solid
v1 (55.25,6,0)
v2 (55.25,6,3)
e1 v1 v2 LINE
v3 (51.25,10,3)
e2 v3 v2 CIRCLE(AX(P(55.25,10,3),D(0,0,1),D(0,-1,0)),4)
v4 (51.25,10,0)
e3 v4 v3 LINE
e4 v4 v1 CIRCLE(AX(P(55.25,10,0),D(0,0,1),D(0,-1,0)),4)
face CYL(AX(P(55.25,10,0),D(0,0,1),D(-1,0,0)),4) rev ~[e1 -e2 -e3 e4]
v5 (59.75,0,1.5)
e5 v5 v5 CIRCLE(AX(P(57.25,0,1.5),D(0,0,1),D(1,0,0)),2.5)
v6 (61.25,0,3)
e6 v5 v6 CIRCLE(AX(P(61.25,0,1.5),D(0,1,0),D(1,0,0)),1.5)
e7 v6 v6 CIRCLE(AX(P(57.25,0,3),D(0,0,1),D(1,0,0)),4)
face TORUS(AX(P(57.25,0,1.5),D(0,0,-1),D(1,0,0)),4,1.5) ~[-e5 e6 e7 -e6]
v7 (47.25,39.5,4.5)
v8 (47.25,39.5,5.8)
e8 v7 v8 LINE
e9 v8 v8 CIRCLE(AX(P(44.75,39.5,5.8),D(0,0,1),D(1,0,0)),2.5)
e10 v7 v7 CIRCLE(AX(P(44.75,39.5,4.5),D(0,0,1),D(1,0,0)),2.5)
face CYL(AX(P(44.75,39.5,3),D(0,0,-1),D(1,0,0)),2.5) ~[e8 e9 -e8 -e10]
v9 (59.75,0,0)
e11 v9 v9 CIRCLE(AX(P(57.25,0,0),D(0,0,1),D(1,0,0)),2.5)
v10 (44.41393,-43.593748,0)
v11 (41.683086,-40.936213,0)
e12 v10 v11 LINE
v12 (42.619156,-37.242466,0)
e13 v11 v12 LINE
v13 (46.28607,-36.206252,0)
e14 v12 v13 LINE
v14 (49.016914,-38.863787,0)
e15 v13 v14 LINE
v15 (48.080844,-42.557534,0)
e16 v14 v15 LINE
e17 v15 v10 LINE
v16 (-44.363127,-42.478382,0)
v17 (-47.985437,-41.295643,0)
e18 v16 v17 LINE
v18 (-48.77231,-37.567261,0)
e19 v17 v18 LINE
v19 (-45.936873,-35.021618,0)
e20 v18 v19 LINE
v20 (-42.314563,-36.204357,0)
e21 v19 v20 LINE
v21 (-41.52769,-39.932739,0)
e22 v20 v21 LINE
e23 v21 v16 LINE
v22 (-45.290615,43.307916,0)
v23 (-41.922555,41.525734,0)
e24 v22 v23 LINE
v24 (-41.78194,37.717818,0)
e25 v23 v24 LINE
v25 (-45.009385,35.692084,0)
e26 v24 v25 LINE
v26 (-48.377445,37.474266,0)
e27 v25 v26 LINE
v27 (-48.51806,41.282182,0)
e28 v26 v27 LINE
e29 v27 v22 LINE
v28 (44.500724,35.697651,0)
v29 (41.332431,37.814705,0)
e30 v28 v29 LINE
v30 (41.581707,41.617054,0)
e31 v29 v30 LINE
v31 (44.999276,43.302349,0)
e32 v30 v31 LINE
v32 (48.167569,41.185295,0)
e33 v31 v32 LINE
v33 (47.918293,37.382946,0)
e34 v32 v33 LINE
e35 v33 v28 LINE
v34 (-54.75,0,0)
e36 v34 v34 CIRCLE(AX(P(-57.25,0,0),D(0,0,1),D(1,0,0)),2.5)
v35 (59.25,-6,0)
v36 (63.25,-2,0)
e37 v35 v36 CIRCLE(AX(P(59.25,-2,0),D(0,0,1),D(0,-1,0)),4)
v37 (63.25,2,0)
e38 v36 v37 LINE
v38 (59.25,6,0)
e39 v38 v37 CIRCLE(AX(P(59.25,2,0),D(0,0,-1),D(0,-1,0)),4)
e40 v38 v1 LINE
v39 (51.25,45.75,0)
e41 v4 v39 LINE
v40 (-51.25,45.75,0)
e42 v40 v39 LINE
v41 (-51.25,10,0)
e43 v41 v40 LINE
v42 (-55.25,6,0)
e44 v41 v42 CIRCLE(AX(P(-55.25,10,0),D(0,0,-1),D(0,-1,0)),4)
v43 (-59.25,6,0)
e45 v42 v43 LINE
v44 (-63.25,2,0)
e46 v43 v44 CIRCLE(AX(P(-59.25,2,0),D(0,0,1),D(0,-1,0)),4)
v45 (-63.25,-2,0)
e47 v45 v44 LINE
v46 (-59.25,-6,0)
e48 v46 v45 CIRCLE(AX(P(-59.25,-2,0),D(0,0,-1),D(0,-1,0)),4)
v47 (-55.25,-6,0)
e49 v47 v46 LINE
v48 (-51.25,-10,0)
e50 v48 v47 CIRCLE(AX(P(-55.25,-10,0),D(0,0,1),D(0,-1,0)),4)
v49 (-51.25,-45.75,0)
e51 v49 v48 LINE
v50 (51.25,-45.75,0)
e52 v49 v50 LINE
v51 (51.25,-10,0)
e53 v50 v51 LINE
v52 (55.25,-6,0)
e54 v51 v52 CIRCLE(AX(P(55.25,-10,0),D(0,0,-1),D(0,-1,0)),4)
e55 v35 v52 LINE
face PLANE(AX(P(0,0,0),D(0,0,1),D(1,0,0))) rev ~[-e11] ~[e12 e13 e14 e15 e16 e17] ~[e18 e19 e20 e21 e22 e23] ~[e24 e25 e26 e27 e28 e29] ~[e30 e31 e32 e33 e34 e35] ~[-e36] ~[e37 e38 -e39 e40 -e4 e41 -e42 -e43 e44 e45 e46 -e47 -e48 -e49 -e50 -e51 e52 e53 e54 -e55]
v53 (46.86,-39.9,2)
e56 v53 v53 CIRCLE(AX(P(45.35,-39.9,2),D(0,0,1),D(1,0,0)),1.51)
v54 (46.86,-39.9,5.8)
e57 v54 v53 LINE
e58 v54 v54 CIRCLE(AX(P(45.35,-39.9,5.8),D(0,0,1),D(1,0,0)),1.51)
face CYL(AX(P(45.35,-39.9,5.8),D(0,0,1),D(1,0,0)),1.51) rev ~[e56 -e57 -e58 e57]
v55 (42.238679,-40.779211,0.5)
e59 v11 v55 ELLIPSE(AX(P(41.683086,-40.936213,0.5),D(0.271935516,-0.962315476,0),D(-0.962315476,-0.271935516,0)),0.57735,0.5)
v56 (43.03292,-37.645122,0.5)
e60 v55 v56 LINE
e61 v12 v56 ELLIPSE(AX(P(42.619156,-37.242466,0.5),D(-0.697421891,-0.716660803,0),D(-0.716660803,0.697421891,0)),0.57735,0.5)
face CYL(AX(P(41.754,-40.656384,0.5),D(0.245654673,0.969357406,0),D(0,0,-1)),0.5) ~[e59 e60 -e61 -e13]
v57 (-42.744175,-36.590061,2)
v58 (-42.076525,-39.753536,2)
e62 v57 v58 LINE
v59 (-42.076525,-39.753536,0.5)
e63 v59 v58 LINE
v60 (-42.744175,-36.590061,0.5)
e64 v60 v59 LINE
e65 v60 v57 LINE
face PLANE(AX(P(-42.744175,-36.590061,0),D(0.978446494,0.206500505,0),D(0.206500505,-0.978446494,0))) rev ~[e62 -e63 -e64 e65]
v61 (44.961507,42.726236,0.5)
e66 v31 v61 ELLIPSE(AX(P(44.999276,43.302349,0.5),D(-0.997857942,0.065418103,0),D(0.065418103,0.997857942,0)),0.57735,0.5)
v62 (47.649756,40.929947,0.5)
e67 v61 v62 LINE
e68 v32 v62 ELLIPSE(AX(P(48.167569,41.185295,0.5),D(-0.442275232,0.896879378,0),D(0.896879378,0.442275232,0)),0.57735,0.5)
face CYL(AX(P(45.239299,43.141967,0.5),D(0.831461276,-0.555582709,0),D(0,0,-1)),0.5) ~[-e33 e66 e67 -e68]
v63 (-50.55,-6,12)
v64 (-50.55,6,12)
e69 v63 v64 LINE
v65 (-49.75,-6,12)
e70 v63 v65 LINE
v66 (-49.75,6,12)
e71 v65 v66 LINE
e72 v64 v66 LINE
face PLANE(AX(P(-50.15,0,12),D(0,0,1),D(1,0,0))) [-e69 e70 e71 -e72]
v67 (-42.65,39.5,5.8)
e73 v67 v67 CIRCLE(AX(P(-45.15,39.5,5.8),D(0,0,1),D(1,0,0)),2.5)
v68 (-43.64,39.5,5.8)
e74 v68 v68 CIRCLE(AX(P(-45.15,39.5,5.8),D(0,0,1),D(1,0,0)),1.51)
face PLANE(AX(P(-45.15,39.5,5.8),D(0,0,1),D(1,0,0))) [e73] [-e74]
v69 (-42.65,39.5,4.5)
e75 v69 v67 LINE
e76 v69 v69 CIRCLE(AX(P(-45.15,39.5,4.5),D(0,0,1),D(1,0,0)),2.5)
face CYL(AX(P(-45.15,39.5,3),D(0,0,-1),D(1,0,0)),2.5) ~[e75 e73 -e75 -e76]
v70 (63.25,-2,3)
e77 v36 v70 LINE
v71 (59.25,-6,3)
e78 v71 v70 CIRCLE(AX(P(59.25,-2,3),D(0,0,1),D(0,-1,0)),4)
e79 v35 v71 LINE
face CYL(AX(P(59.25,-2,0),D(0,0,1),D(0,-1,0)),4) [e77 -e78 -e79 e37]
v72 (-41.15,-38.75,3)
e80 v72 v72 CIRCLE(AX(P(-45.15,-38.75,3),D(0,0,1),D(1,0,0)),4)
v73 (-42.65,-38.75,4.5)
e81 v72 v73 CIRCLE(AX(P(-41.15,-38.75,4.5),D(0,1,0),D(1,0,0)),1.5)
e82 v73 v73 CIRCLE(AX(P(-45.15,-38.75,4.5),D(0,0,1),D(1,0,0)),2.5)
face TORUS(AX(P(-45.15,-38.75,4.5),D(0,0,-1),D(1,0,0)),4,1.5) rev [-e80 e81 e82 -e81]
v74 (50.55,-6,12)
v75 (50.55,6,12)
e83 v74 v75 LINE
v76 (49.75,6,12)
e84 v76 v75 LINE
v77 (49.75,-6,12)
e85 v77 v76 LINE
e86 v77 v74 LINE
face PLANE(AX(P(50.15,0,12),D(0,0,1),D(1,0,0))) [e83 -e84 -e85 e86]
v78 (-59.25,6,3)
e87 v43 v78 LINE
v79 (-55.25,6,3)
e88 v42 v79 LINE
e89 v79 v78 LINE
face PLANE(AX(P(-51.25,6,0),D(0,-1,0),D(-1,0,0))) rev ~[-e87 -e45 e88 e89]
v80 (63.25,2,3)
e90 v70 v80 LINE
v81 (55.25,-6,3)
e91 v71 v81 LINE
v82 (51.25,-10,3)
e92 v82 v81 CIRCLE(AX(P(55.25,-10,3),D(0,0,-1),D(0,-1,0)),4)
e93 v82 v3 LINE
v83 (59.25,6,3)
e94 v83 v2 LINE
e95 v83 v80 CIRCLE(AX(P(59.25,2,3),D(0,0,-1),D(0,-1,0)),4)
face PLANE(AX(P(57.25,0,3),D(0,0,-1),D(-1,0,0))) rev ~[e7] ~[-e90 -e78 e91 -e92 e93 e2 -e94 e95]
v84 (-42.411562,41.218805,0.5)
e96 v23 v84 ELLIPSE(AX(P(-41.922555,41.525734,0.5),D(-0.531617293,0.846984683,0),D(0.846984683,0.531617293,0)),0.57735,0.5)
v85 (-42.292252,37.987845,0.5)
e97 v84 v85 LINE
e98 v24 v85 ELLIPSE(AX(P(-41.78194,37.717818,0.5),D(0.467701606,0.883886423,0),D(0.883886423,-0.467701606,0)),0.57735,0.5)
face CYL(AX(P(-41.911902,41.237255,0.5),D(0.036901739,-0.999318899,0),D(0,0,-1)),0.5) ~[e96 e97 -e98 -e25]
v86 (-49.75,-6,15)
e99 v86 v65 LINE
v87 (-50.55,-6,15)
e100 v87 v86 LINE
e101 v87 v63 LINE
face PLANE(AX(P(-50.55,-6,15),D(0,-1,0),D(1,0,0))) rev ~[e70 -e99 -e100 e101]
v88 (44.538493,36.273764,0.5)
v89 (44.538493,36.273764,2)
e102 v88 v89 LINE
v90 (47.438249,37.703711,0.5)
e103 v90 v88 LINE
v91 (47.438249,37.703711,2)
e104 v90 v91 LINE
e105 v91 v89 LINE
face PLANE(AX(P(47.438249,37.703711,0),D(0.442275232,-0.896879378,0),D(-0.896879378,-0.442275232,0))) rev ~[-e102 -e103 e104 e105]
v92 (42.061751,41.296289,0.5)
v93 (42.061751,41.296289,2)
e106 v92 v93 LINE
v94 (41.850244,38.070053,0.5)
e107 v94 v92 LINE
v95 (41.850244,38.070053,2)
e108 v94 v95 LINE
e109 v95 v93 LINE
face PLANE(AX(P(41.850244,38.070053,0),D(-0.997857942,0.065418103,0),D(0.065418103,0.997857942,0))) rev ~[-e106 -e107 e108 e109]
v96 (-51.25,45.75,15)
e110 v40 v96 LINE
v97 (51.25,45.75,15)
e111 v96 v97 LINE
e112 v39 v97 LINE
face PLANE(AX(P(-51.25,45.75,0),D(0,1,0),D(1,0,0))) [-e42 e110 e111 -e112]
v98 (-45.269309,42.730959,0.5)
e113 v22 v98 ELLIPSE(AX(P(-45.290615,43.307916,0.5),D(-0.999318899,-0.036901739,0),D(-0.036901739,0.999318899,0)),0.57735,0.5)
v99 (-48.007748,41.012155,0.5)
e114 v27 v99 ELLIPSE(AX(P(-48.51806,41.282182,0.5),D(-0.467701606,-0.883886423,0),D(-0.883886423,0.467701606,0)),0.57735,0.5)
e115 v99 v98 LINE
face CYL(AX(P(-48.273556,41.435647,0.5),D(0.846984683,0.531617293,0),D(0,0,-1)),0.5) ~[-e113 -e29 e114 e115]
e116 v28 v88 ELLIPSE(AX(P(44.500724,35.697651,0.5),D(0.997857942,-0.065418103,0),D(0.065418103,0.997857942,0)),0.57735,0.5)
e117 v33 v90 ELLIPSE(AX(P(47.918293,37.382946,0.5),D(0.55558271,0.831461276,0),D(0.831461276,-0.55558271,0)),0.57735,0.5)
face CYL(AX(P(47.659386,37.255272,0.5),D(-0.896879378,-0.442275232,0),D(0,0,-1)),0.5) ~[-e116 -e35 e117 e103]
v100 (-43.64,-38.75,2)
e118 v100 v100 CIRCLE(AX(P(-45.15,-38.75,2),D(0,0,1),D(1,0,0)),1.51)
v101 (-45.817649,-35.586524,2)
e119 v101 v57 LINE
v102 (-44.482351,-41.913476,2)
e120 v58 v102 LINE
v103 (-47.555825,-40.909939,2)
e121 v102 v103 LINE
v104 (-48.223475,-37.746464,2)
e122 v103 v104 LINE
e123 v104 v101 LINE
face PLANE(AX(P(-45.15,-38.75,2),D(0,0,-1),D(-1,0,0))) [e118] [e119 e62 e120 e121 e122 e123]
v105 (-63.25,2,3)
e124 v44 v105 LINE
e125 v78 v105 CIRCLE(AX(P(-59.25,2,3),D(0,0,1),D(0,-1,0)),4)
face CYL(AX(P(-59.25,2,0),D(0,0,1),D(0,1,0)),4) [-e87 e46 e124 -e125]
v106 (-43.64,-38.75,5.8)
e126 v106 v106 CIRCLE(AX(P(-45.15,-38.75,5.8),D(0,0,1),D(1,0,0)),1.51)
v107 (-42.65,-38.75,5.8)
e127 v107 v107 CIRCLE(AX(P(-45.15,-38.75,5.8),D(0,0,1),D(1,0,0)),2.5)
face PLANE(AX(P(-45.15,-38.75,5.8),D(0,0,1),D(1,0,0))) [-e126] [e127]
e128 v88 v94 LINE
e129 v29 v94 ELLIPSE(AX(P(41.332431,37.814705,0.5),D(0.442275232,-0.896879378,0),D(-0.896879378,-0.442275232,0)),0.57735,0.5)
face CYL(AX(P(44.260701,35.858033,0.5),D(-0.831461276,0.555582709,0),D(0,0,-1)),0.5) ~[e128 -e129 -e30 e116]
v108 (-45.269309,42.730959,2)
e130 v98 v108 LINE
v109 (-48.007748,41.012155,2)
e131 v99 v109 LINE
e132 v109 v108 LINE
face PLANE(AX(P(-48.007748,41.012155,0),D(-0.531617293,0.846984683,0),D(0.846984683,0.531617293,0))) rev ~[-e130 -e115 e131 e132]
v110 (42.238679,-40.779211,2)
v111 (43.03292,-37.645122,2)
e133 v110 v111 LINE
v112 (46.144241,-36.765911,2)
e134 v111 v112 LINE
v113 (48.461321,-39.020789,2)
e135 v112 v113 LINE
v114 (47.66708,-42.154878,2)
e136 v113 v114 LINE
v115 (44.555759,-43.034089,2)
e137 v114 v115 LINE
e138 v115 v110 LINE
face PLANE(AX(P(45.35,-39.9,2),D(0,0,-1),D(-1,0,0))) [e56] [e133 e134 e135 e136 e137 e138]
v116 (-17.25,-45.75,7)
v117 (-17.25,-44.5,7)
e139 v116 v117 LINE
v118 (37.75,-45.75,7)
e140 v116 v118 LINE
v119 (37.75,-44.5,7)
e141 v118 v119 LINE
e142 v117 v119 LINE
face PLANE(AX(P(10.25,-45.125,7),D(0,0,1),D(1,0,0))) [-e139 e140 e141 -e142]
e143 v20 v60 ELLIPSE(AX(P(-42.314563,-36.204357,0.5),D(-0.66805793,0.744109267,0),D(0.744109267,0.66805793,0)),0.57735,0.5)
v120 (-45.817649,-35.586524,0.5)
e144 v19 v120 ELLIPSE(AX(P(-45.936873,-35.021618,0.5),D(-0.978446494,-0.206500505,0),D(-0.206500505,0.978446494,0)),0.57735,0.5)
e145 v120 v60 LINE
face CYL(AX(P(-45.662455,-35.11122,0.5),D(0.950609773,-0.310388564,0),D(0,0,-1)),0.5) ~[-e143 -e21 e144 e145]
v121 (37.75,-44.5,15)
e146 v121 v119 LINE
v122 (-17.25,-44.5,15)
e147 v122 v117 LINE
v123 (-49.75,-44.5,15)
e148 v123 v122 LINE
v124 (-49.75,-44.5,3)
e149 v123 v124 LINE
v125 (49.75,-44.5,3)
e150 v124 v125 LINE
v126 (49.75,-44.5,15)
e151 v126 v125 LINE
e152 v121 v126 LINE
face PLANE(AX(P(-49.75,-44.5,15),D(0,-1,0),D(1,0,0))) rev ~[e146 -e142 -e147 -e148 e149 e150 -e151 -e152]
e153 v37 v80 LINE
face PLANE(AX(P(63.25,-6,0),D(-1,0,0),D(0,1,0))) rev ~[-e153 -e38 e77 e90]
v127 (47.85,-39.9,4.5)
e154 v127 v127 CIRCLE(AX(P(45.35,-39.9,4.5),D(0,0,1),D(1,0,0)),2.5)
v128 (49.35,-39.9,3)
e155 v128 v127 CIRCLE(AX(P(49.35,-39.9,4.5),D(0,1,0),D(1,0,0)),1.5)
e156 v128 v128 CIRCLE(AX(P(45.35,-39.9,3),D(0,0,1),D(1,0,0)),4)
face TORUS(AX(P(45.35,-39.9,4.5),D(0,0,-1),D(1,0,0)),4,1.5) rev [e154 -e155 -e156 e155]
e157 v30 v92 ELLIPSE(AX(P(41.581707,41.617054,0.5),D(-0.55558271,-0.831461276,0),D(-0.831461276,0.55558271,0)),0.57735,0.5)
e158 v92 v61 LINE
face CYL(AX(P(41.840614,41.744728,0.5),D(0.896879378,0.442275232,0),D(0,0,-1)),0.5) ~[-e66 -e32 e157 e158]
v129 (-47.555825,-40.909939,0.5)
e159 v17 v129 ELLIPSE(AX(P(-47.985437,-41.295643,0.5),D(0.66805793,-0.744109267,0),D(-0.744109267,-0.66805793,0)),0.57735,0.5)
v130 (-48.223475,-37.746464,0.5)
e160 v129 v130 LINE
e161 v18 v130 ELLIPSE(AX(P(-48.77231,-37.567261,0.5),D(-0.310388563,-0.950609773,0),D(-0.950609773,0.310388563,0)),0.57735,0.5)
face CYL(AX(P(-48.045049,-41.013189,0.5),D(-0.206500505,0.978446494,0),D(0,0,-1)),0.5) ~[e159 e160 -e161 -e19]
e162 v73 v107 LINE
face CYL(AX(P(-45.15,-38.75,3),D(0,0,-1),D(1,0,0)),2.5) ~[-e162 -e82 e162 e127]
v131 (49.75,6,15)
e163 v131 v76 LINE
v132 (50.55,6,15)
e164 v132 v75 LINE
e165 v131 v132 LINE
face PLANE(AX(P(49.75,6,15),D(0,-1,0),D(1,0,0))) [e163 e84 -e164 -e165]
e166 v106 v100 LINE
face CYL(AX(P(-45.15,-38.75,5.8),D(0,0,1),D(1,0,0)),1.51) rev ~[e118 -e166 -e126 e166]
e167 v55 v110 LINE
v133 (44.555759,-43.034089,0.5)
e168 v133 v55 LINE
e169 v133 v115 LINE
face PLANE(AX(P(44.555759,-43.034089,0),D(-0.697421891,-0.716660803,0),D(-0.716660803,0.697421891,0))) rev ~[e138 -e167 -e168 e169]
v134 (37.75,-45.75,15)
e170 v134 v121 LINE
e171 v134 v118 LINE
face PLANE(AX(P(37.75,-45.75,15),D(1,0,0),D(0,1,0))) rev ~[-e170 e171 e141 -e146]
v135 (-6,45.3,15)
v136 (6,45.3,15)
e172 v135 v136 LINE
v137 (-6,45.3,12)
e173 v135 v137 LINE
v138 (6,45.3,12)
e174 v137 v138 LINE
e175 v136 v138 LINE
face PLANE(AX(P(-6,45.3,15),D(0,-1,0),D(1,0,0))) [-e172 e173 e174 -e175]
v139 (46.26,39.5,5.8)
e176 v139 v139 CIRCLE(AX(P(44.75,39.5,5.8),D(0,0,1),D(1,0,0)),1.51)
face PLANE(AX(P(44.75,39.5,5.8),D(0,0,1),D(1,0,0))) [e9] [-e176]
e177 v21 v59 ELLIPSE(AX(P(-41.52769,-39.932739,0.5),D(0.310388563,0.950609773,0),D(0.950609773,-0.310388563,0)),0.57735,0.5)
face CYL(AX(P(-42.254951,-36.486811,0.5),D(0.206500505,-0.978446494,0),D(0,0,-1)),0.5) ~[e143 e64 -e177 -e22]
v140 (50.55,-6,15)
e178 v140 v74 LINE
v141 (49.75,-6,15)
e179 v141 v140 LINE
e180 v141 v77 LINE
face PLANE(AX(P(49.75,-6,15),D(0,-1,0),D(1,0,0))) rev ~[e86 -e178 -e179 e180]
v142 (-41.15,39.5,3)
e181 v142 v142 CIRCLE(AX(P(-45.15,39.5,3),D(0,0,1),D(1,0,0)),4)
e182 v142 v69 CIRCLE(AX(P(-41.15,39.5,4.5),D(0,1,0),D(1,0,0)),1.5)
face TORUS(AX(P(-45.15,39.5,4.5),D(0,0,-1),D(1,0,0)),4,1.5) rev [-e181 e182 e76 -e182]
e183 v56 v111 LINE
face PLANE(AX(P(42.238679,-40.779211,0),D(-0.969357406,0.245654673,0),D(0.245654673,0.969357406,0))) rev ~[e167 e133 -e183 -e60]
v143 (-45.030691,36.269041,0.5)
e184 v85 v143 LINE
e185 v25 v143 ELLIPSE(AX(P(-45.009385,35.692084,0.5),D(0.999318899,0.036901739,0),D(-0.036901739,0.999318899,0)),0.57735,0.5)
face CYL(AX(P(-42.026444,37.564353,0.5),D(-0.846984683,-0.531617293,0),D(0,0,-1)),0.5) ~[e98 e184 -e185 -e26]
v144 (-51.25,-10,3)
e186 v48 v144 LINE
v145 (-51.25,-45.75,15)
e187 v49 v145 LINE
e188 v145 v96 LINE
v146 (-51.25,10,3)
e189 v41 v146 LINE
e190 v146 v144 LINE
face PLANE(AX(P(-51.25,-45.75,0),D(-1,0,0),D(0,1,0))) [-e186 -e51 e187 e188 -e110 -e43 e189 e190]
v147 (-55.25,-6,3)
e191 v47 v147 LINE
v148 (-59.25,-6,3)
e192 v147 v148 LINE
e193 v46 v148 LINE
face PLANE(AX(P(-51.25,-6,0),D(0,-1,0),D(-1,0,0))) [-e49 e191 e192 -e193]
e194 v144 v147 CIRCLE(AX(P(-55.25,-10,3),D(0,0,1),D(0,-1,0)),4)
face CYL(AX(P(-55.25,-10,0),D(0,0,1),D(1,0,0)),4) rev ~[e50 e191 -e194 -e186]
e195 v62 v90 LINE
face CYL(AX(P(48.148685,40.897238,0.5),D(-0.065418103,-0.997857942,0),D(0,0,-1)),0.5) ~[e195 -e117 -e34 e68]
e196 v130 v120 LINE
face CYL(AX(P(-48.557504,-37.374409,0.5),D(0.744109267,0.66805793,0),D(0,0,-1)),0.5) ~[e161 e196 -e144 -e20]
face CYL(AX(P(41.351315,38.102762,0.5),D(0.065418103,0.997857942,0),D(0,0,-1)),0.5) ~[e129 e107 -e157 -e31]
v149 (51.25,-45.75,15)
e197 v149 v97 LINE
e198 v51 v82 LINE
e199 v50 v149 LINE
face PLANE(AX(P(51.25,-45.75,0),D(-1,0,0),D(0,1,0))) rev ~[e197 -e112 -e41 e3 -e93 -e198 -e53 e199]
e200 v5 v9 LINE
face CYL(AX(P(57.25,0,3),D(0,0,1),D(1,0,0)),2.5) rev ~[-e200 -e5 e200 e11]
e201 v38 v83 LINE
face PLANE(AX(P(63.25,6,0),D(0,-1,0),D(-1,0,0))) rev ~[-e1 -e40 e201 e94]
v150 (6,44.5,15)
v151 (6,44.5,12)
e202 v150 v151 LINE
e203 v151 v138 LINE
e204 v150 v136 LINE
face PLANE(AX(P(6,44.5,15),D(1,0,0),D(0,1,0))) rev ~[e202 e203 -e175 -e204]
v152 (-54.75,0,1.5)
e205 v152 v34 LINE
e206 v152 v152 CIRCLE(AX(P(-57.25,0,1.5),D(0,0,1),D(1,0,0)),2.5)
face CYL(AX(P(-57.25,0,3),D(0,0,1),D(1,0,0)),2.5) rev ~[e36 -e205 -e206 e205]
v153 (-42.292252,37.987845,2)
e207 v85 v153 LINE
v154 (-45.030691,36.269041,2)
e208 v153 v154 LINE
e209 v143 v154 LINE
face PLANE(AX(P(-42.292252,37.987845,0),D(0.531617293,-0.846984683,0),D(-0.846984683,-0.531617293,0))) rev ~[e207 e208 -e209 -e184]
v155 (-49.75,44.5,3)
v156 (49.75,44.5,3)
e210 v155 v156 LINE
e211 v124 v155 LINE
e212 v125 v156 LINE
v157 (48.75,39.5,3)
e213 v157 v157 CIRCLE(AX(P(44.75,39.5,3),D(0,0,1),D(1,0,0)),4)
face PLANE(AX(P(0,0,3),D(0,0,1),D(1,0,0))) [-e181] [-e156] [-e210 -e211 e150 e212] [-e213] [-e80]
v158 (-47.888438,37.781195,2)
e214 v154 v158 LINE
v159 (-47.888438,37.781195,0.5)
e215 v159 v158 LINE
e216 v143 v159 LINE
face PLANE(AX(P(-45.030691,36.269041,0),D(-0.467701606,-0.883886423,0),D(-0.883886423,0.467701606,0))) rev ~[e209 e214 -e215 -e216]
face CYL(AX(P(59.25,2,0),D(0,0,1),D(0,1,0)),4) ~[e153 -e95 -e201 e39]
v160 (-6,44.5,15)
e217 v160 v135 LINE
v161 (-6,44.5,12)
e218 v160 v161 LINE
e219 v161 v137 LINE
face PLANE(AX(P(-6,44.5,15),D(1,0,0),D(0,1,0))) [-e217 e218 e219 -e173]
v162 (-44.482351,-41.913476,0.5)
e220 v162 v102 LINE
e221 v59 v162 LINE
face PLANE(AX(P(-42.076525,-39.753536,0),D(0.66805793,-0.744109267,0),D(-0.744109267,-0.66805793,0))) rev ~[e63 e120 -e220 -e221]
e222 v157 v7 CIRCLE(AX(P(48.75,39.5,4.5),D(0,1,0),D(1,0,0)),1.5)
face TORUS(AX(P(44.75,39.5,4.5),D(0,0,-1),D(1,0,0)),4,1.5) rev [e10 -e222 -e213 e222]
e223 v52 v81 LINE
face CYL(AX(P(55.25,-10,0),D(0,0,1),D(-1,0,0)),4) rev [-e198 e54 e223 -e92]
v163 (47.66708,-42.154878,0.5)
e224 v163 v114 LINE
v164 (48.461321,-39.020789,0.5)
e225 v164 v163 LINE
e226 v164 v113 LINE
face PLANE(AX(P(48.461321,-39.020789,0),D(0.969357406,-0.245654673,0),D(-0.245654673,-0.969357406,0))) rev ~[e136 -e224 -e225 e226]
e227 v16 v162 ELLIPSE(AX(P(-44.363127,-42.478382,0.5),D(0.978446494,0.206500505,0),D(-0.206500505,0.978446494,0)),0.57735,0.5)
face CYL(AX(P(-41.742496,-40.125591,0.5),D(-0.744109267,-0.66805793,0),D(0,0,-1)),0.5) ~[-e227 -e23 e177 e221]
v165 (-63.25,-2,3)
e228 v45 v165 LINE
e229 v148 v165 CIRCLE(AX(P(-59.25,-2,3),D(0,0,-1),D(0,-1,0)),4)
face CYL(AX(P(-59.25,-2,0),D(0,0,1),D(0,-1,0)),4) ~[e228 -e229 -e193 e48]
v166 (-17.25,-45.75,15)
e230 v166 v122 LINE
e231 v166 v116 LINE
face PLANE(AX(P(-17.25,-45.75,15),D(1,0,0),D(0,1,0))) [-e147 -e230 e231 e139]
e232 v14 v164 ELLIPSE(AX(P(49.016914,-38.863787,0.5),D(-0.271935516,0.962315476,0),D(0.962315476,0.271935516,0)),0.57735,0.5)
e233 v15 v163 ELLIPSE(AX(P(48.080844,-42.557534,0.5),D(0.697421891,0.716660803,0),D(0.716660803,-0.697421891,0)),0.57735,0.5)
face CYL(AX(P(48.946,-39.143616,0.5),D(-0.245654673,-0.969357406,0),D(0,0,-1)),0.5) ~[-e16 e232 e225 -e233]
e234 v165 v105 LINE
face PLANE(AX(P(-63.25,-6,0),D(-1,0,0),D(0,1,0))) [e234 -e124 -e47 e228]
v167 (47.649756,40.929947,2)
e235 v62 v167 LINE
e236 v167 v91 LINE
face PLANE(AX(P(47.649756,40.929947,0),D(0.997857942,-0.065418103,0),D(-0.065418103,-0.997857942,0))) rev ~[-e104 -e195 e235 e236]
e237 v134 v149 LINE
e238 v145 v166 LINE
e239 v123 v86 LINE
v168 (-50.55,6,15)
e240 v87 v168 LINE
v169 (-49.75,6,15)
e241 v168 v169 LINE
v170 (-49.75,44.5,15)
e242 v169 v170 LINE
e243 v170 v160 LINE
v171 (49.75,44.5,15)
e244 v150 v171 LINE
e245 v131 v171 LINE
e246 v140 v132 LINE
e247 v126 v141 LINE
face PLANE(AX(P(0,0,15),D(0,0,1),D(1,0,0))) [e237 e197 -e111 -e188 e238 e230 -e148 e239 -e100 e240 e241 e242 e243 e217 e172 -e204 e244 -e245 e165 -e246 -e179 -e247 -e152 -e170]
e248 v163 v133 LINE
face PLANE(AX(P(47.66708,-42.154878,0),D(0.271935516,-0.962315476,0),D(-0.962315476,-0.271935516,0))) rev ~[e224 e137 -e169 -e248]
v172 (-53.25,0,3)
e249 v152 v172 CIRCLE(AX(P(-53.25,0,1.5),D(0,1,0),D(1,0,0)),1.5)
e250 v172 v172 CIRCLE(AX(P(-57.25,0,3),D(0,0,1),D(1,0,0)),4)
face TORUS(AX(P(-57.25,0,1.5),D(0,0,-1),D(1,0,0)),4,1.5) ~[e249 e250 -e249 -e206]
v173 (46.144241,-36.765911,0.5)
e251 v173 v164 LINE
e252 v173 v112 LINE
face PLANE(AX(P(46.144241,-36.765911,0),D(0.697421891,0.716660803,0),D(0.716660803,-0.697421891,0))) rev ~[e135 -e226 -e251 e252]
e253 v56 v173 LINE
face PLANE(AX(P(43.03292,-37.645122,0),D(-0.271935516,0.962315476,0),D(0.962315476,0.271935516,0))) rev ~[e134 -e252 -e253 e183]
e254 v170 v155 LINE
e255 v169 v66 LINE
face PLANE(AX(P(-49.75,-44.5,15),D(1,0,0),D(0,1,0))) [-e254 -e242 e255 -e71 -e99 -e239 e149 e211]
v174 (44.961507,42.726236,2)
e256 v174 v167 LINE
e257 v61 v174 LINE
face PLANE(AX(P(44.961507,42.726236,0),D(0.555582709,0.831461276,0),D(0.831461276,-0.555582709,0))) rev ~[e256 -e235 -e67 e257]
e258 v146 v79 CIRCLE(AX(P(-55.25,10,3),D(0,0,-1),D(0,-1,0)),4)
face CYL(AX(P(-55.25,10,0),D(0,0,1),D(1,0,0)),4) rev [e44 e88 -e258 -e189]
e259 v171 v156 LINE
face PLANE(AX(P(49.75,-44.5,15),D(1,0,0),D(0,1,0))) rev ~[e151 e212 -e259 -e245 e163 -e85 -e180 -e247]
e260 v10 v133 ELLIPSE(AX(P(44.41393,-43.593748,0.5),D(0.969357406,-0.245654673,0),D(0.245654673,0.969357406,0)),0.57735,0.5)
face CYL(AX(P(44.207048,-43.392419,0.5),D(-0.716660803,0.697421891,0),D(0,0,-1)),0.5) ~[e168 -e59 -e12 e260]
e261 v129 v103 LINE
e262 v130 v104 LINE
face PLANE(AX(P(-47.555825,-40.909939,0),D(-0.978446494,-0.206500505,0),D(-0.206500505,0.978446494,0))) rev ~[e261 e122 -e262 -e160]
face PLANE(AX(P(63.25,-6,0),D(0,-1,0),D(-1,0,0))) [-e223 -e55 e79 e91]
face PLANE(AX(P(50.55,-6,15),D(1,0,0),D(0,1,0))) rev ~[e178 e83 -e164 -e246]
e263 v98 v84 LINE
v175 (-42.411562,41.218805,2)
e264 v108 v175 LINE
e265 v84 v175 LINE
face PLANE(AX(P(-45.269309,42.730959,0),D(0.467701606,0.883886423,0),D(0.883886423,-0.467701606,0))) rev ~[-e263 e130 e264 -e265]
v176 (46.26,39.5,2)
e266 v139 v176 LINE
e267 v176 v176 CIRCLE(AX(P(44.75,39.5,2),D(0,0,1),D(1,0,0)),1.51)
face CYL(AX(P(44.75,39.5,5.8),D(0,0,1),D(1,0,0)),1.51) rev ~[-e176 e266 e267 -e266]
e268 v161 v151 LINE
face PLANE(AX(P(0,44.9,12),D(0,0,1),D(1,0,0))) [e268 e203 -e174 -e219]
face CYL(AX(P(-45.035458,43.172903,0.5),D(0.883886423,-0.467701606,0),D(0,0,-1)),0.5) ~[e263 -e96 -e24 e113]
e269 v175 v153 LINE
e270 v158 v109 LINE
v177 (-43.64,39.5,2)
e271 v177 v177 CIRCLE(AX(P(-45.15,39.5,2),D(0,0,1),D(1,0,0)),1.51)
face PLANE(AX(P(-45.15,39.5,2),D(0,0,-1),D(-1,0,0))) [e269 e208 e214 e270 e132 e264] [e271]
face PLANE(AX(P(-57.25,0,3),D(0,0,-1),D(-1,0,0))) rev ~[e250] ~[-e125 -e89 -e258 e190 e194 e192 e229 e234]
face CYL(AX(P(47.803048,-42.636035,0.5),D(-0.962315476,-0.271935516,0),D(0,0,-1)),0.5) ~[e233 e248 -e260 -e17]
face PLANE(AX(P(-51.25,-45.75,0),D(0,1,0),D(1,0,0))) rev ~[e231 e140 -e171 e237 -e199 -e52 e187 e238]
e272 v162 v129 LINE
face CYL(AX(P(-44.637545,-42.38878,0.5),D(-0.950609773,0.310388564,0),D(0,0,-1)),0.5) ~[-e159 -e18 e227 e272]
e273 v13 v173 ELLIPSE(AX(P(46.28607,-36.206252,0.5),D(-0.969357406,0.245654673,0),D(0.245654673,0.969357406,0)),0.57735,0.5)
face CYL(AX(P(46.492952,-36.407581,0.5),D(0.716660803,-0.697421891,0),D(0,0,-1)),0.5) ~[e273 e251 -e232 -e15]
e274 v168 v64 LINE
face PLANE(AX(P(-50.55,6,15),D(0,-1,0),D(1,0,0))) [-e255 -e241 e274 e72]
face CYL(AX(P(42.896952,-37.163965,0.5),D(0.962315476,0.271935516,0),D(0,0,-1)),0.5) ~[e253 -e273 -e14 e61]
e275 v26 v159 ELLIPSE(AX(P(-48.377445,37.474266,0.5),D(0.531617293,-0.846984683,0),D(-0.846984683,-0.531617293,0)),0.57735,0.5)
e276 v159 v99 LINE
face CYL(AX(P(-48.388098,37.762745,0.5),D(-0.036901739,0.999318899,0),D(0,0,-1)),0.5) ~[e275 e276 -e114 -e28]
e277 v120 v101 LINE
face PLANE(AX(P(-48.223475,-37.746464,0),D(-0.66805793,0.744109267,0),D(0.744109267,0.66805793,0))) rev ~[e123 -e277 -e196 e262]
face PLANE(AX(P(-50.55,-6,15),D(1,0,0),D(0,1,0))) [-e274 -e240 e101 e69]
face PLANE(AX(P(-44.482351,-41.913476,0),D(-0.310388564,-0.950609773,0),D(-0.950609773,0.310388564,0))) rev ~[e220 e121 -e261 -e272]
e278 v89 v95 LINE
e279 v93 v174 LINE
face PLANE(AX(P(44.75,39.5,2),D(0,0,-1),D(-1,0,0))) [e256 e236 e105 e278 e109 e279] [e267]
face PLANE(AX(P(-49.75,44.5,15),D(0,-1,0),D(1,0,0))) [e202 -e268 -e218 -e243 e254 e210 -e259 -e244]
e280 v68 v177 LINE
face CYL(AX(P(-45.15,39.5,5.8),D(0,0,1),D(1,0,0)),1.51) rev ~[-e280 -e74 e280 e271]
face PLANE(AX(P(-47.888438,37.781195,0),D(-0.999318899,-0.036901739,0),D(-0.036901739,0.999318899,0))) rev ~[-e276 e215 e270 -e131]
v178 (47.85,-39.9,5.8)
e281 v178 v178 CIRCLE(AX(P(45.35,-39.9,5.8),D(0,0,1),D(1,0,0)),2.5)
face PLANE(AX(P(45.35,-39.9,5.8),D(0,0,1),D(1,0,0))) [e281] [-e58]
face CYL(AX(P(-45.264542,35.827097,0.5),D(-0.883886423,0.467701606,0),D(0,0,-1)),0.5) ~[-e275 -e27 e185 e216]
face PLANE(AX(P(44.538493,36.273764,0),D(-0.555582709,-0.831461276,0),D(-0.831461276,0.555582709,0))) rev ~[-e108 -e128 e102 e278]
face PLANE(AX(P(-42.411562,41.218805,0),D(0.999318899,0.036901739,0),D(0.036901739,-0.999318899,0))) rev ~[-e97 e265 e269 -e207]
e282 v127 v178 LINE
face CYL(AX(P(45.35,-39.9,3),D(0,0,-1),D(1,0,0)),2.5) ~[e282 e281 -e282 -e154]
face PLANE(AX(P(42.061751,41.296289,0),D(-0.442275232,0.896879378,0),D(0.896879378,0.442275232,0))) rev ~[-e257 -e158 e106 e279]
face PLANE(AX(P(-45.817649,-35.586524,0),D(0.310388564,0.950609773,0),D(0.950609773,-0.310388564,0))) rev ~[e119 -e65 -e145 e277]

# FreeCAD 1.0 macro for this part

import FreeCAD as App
import Part
import Sketcher
from FreeCAD import Vector
Q = App.Units.Quantity


def edges_at(feature, points):
    """Names of the edges that pass closest to the given points."""
    edges = feature.Shape.Edges
    near = lambda p: min(range(len(edges)), key=lambda i: edges[i].distToShape(Part.Vertex(*p))[0])
    return sorted({f"Edge{near(p) + 1}" for p in points})


def add_polygon(sketch, points):
    """Adds a closed chain of lines whose ends are joined by coincident constraints."""
    first, n = sketch.GeometryCount, len(points)
    for a, b in zip(points, points[1:] + points[:1]):
        sketch.addGeometry(Part.LineSegment(App.Vector(*a, 0), App.Vector(*b, 0)), False)
    for i in range(n):
        sketch.addConstraint(Sketcher.Constraint("Coincident", first + i, 2, first + (i + 1) % n, 1))

doc = App.newDocument("Part")
params = doc.addObject("Spreadsheet::Sheet", "Params")
for row, (alias, value) in enumerate([
    ("sketch1_width", "102.5 mm"),
    ("sketch1_height", "91.5 mm"),
    ("pad1_length", "15 mm"),
    ("sketch2_height", "89 mm"),
    ("sketch2_width", "99.5 mm"),
    ("pocket1_length", "12 mm"),
    ("sketch3_width", "55 mm"),
    ("sketch3_height", "1.25 mm"),
    ("pocket2_length", "8 mm"),
    ("sketch4_diameter", "3 mm"),
    ("pad2_length", "0.1 mm"),
    ("sketch5_diameter", "5 mm"),
    ("pad3_length", "2.8 mm"),
    ("sketch6_width", "12 mm"),
    ("sketch6_width2", "0.8 mm"),
    ("pocket3_length", "3 mm"),
    ("sketch7_diameter", "3.02 mm"),
    ("pocket4_length", "10 mm"),
    ("sketch8_width", "12 mm"),
    ("pad4_length", "3 mm"),
    ("fillet_radius", "4 mm"),
    ("sketch9_diameter", "5 mm"),
    ("pocket5_length", "3 mm"),
    ("fillet2_radius", "1.5 mm"),
    ("pocket6_length", "2 mm"),
    ("fillet3_radius", "1.5 mm"),
    ("fillet4_radius", "0.5 mm"),
], start=1):
    params.set(f"A{row}", alias)
    params.set(f"B{row}", "=" + value)
    params.setAlias(f"B{row}", alias)

body = doc.addObject("PartDesign::Body", "Body")

# Sketch on XY plane
sketch1 = body.newObject("Sketcher::SketchObject", "Sketch")
sketch1.AttachmentSupport = (doc.getObject("XY_Plane"), [""])
sketch1.MapMode = "FlatFace"
add_polygon(sketch1, [(-51.25, 45.75), (-51.25, -45.75), (51.25, -45.75), (51.25, 45.75)])  # lines 0-3
sketch1.addConstraint(Sketcher.Constraint("Vertical", 0))
sketch1.addConstraint(Sketcher.Constraint("Horizontal", 1))
sketch1.addConstraint(Sketcher.Constraint("Vertical", 2))
sketch1.addConstraint(Sketcher.Constraint("Horizontal", 3))
sketch1.addConstraint(Sketcher.Constraint("Symmetric", 0, 2, 2, 2, -1, 1))
sketch1.addConstraint(Sketcher.Constraint("DistanceX", 1, 1, 1, 2, Q("102.5 mm")))
sketch1.addConstraint(Sketcher.Constraint("DistanceY", 0, 2, 0, 1, Q("91.5 mm")))
sketch1.setExpression("Constraints[9]", "Params.sketch1_width")
sketch1.setExpression("Constraints[10]", "Params.sketch1_height")
pad1 = body.newObject("PartDesign::Pad", "Pad")
pad1.Profile = sketch1
pad1.setExpression("Length", "Params.pad1_length")

# Sketch on XY plane
sketch2 = body.newObject("Sketcher::SketchObject", "Sketch001")
sketch2.AttachmentSupport = (doc.getObject("XY_Plane"), [""])
sketch2.MapMode = "FlatFace"
sketch2.AttachmentOffset = App.Placement(Vector(0, 0, 15), App.Rotation())
add_polygon(sketch2, [(-49.75, 44.5), (-49.75, -44.5), (49.75, -44.5), (49.75, 44.5)])  # lines 0-3
sketch2.addConstraint(Sketcher.Constraint("Vertical", 0))
sketch2.addConstraint(Sketcher.Constraint("Horizontal", 1))
sketch2.addConstraint(Sketcher.Constraint("Vertical", 2))
sketch2.addConstraint(Sketcher.Constraint("Horizontal", 3))
sketch2.addConstraint(Sketcher.Constraint("Symmetric", 0, 2, 2, 2, -1, 1))
sketch2.addConstraint(Sketcher.Constraint("DistanceY", 0, 2, 0, 1, Q("89 mm")))
sketch2.addConstraint(Sketcher.Constraint("DistanceX", 1, 1, 1, 2, Q("99.5 mm")))
sketch2.setExpression("Constraints[9]", "Params.sketch2_height")
sketch2.setExpression("Constraints[10]", "Params.sketch2_width")
pocket1 = body.newObject("PartDesign::Pocket", "Pocket")
pocket1.Profile = sketch2
pocket1.setExpression("Length", "Params.pocket1_length")

# Sketch on XY plane
sketch3 = body.newObject("Sketcher::SketchObject", "Sketch002")
sketch3.AttachmentSupport = (doc.getObject("XY_Plane"), [""])
sketch3.MapMode = "FlatFace"
sketch3.AttachmentOffset = App.Placement(Vector(0, 0, 15), App.Rotation())
add_polygon(sketch3, [(-17.25, -44.5), (-17.25, -45.75), (37.75, -45.75), (37.75, -44.5)])  # lines 0-3
sketch3.addConstraint(Sketcher.Constraint("Vertical", 0))
sketch3.addConstraint(Sketcher.Constraint("Horizontal", 1))
sketch3.addConstraint(Sketcher.Constraint("Vertical", 2))
sketch3.addConstraint(Sketcher.Constraint("Horizontal", 3))
sketch3.addConstraint(Sketcher.Constraint("DistanceX", 1, 1, 1, 2, Q("55 mm")))
sketch3.addConstraint(Sketcher.Constraint("DistanceY", 0, 2, 0, 1, Q("1.25 mm")))
sketch3.addConstraint(Sketcher.Constraint("DistanceY", 2, 2, -1, 1, Q("44.5 mm")))
sketch3.addConstraint(Sketcher.Constraint("DistanceX", 0, 2, -1, 1, Q("17.25 mm")))
sketch3.setExpression("Constraints[8]", "Params.sketch3_width")
sketch3.setExpression("Constraints[9]", "Params.sketch3_height")
pocket2 = body.newObject("PartDesign::Pocket", "Pocket001")
pocket2.Profile = sketch3
pocket2.setExpression("Length", "Params.pocket2_length")

# Sketch on XY plane
sketch4 = body.newObject("Sketcher::SketchObject", "Sketch003")
sketch4.AttachmentSupport = (doc.getObject("XY_Plane"), [""])
sketch4.MapMode = "FlatFace"
sketch4.AttachmentOffset = App.Placement(Vector(0, 0, 3), App.Rotation())
sketch4.addGeometry(Part.Circle(Vector(-45.15, 39.5, 0), Vector(0, 0, 1), 1.5), False)
sketch4.addGeometry(Part.Circle(Vector(44.75, 39.5, 0), Vector(0, 0, 1), 1.5), False)
sketch4.addGeometry(Part.Circle(Vector(-45.15, -38.75, 0), Vector(0, 0, 1), 1.5), False)
sketch4.addGeometry(Part.Circle(Vector(45.35, -39.9, 0), Vector(0, 0, 1), 1.5), False)
sketch4.addConstraint(Sketcher.Constraint("Equal", 0, 1))
sketch4.addConstraint(Sketcher.Constraint("Equal", 1, 2))
sketch4.addConstraint(Sketcher.Constraint("Equal", 2, 3))
sketch4.addConstraint(Sketcher.Constraint("Horizontal", 0, 3, 1, 3))
sketch4.addConstraint(Sketcher.Constraint("Vertical", 0, 3, 2, 3))
sketch4.addConstraint(Sketcher.Constraint("Diameter", 0, Q("3 mm")))
sketch4.addConstraint(Sketcher.Constraint("DistanceY", -1, 1, 0, 3, Q("39.5 mm")))
sketch4.addConstraint(Sketcher.Constraint("DistanceY", 3, 3, -1, 1, Q("39.9 mm")))
sketch4.addConstraint(Sketcher.Constraint("DistanceX", 0, 3, 1, 3, Q("89.9 mm")))
sketch4.addConstraint(Sketcher.Constraint("DistanceX", 1, 3, 3, 3, Q("0.6 mm")))
sketch4.addConstraint(Sketcher.Constraint("DistanceX", 0, 3, -1, 1, Q("45.15 mm")))
sketch4.addConstraint(Sketcher.Constraint("DistanceY", 2, 3, -1, 1, Q("38.75 mm")))
sketch4.setExpression("Constraints[5]", "Params.sketch4_diameter")
pad2 = body.newObject("PartDesign::Pad", "Pad001")
pad2.Profile = sketch4
pad2.setExpression("Length", "Params.pad2_length")

# Sketch on XY plane
sketch5 = body.newObject("Sketcher::SketchObject", "Sketch004")
sketch5.AttachmentSupport = (doc.getObject("XY_Plane"), [""])
sketch5.MapMode = "FlatFace"
sketch5.AttachmentOffset = App.Placement(Vector(0, 0, 3), App.Rotation())
sketch5.addGeometry(Part.Circle(Vector(-45.15, 39.5, 0), Vector(0, 0, 1), 2.5), False)
sketch5.addGeometry(Part.Circle(Vector(44.75, 39.5, 0), Vector(0, 0, 1), 2.5), False)
sketch5.addGeometry(Part.Circle(Vector(-45.15, -38.75, 0), Vector(0, 0, 1), 2.5), False)
sketch5.addGeometry(Part.Circle(Vector(45.35, -39.9, 0), Vector(0, 0, 1), 2.5), False)
sketch5.addConstraint(Sketcher.Constraint("Equal", 0, 1))
sketch5.addConstraint(Sketcher.Constraint("Equal", 1, 2))
sketch5.addConstraint(Sketcher.Constraint("Equal", 2, 3))
sketch5.addConstraint(Sketcher.Constraint("Horizontal", 0, 3, 1, 3))
sketch5.addConstraint(Sketcher.Constraint("Vertical", 0, 3, 2, 3))
sketch5.addConstraint(Sketcher.Constraint("Diameter", 0, Q("5 mm")))
sketch5.addConstraint(Sketcher.Constraint("DistanceY", -1, 1, 0, 3, Q("39.5 mm")))
sketch5.addConstraint(Sketcher.Constraint("DistanceY", 3, 3, -1, 1, Q("39.9 mm")))
sketch5.addConstraint(Sketcher.Constraint("DistanceX", 0, 3, 1, 3, Q("89.9 mm")))
sketch5.addConstraint(Sketcher.Constraint("DistanceX", 1, 3, 3, 3, Q("0.6 mm")))
sketch5.addConstraint(Sketcher.Constraint("DistanceX", 0, 3, -1, 1, Q("45.15 mm")))
sketch5.addConstraint(Sketcher.Constraint("DistanceY", 2, 3, -1, 1, Q("38.75 mm")))
sketch5.setExpression("Constraints[5]", "Params.sketch5_diameter")
pad3 = body.newObject("PartDesign::Pad", "Pad002")
pad3.Profile = sketch5
pad3.setExpression("Length", "Params.pad3_length")

# Sketch on XY plane
sketch6 = body.newObject("Sketcher::SketchObject", "Sketch005")
sketch6.AttachmentSupport = (doc.getObject("XY_Plane"), [""])
sketch6.MapMode = "FlatFace"
sketch6.AttachmentOffset = App.Placement(Vector(0, 0, 15), App.Rotation())
add_polygon(sketch6, [(-50.55, 6), (-50.55, -6), (-49.75, -6), (-49.75, 6)])  # lines 0-3
add_polygon(sketch6, [(-6, 45.3), (-6, 44.5), (6, 44.5), (6, 45.3)])  # lines 4-7
add_polygon(sketch6, [(49.75, 6), (49.75, -6), (50.55, -6), (50.55, 6)])  # lines 8-11
sketch6.addConstraint(Sketcher.Constraint("Vertical", 0))
sketch6.addConstraint(Sketcher.Constraint("Horizontal", 1))
sketch6.addConstraint(Sketcher.Constraint("Vertical", 2))
sketch6.addConstraint(Sketcher.Constraint("Horizontal", 3))
sketch6.addConstraint(Sketcher.Constraint("Vertical", 4))
sketch6.addConstraint(Sketcher.Constraint("Horizontal", 5))
sketch6.addConstraint(Sketcher.Constraint("Vertical", 6))
sketch6.addConstraint(Sketcher.Constraint("Horizontal", 7))
sketch6.addConstraint(Sketcher.Constraint("Vertical", 8))
sketch6.addConstraint(Sketcher.Constraint("Horizontal", 9))
sketch6.addConstraint(Sketcher.Constraint("Vertical", 10))
sketch6.addConstraint(Sketcher.Constraint("Horizontal", 11))
sketch6.addConstraint(Sketcher.Constraint("Symmetric", 2, 2, 8, 2, -1, 1))
sketch6.addConstraint(Sketcher.Constraint("Symmetric", 0, 2, 10, 2, -1, 1))
sketch6.addConstraint(Sketcher.Constraint("Horizontal", 1, 2, 8, 2))
sketch6.addConstraint(Sketcher.Constraint("Equal", 7, 0))
sketch6.addConstraint(Sketcher.Constraint("Equal", 11, 4))
sketch6.addConstraint(Sketcher.Constraint("DistanceX", 5, 1, 5, 2, Q("12 mm")))
sketch6.addConstraint(Sketcher.Constraint("DistanceX", 1, 1, 1, 2, Q("0.8 mm")))
sketch6.addConstraint(Sketcher.Constraint("DistanceX", 4, 2, -1, 1, Q("6 mm")))
sketch6.addConstraint(Sketcher.Constraint("DistanceY", -1, 1, 4, 2, Q("44.5 mm")))
sketch6.addConstraint(Sketcher.Constraint("DistanceX", 1, 2, 8, 2, Q("99.5 mm")))
sketch6.setExpression("Constraints[29]", "Params.sketch6_width")
sketch6.setExpression("Constraints[30]", "Params.sketch6_width2")
pocket3 = body.newObject("PartDesign::Pocket", "Pocket002")
pocket3.Profile = sketch6
pocket3.setExpression("Length", "Params.pocket3_length")

# Sketch on XY plane
sketch7 = body.newObject("Sketcher::SketchObject", "Sketch006")
sketch7.AttachmentSupport = (doc.getObject("XY_Plane"), [""])
sketch7.MapMode = "FlatFace"
sketch7.AttachmentOffset = App.Placement(Vector(0, 0, 5.8), App.Rotation())
sketch7.addGeometry(Part.Circle(Vector(-45.15, 39.5, 0), Vector(0, 0, 1), 1.51), False)
sketch7.addGeometry(Part.Circle(Vector(44.75, 39.5, 0), Vector(0, 0, 1), 1.51), False)
sketch7.addGeometry(Part.Circle(Vector(-45.15, -38.75, 0), Vector(0, 0, 1), 1.51), False)
sketch7.addGeometry(Part.Circle(Vector(45.35, -39.9, 0), Vector(0, 0, 1), 1.51), False)
sketch7.addConstraint(Sketcher.Constraint("Equal", 0, 1))
sketch7.addConstraint(Sketcher.Constraint("Equal", 1, 2))
sketch7.addConstraint(Sketcher.Constraint("Equal", 2, 3))
sketch7.addConstraint(Sketcher.Constraint("Horizontal", 0, 3, 1, 3))
sketch7.addConstraint(Sketcher.Constraint("Vertical", 0, 3, 2, 3))
sketch7.addConstraint(Sketcher.Constraint("Diameter", 0, Q("3.02 mm")))
sketch7.addConstraint(Sketcher.Constraint("DistanceY", -1, 1, 0, 3, Q("39.5 mm")))
sketch7.addConstraint(Sketcher.Constraint("DistanceY", 3, 3, -1, 1, Q("39.9 mm")))
sketch7.addConstraint(Sketcher.Constraint("DistanceX", 0, 3, 1, 3, Q("89.9 mm")))
sketch7.addConstraint(Sketcher.Constraint("DistanceX", 1, 3, 3, 3, Q("0.6 mm")))
sketch7.addConstraint(Sketcher.Constraint("DistanceX", 0, 3, -1, 1, Q("45.15 mm")))
sketch7.addConstraint(Sketcher.Constraint("DistanceY", 2, 3, -1, 1, Q("38.75 mm")))
sketch7.setExpression("Constraints[5]", "Params.sketch7_diameter")
pocket4 = body.newObject("PartDesign::Pocket", "Pocket003")
pocket4.Profile = sketch7
pocket4.setExpression("Length", "Params.pocket4_length")

# Sketch on XY plane
sketch8 = body.newObject("Sketcher::SketchObject", "Sketch007")
sketch8.AttachmentSupport = (doc.getObject("XY_Plane"), [""])
sketch8.MapMode = "FlatFace"
add_polygon(sketch8, [(63.25, 6), (63.25, -6), (51.25, -6), (51.25, 6)])  # lines 0-3
add_polygon(sketch8, [(-51.25, 6), (-51.25, -6), (-63.25, -6), (-63.25, 6)])  # lines 4-7
sketch8.addConstraint(Sketcher.Constraint("Vertical", 0))
sketch8.addConstraint(Sketcher.Constraint("Horizontal", 1))
sketch8.addConstraint(Sketcher.Constraint("Vertical", 2))
sketch8.addConstraint(Sketcher.Constraint("Horizontal", 3))
sketch8.addConstraint(Sketcher.Constraint("Vertical", 4))
sketch8.addConstraint(Sketcher.Constraint("Horizontal", 5))
sketch8.addConstraint(Sketcher.Constraint("Vertical", 6))
sketch8.addConstraint(Sketcher.Constraint("Horizontal", 7))
sketch8.addConstraint(Sketcher.Constraint("Symmetric", 2, 2, 4, 2, -1, 1))
sketch8.addConstraint(Sketcher.Constraint("Symmetric", 0, 2, 6, 2, -1, 1))
sketch8.addConstraint(Sketcher.Constraint("Horizontal", 1, 2, 4, 2))
sketch8.addConstraint(Sketcher.Constraint("Equal", 7, 0))
sketch8.addConstraint(Sketcher.Constraint("DistanceX", 1, 2, 1, 1, Q("12 mm")))
sketch8.addConstraint(Sketcher.Constraint("DistanceX", 4, 2, 1, 2, Q("102.5 mm")))
sketch8.setExpression("Constraints[20]", "Params.sketch8_width")
pad4 = body.newObject("PartDesign::Pad", "Pad003")
pad4.Profile = sketch8
pad4.setExpression("Length", "Params.pad4_length")
doc.recompute()

fillet = body.newObject("PartDesign::Fillet", "Fillet")
fillet.Base = (pad4, edges_at(pad4, [
    (51.25, 6, 1.5),
    (51.25, -6, 1.5),
    (63.25, -6, 1.5),
    (63.25, 6, 1.5),
    (-51.25, -6, 1.5),
    (-51.25, 6, 1.5),
    (-63.25, 6, 1.5),
    (-63.25, -6, 1.5),
]))
fillet.setExpression("Radius", "Params.fillet_radius")

# Sketch on XY plane
sketch9 = body.newObject("Sketcher::SketchObject", "Sketch008")
sketch9.AttachmentSupport = (doc.getObject("XY_Plane"), [""])
sketch9.MapMode = "FlatFace"
sketch9.AttachmentOffset = App.Placement(Vector(0, 0, 3), App.Rotation())
sketch9.addGeometry(Part.Circle(Vector(-57.25, 0, 0), Vector(0, 0, 1), 2.5), False)
sketch9.addGeometry(Part.Circle(Vector(57.25, 0, 0), Vector(0, 0, 1), 2.5), False)
sketch9.addConstraint(Sketcher.Constraint("Equal", 0, 1))
sketch9.addConstraint(Sketcher.Constraint("Symmetric", 0, 3, 1, 3, -1, 1))
sketch9.addConstraint(Sketcher.Constraint("PointOnObject", 0, 3, -1))
sketch9.addConstraint(Sketcher.Constraint("Diameter", 0, Q("5 mm")))
sketch9.addConstraint(Sketcher.Constraint("DistanceX", 0, 3, 1, 3, Q("114.5 mm")))
sketch9.setExpression("Constraints[3]", "Params.sketch9_diameter")
pocket5 = body.newObject("PartDesign::Pocket", "Pocket004")
pocket5.Profile = sketch9
pocket5.setExpression("Length", "Params.pocket5_length")
doc.recompute()

fillet2 = body.newObject("PartDesign::Fillet", "Fillet001")
fillet2.Base = (pocket5, edges_at(pocket5, [(-59.75, 0, 3), (54.75, 0, 3)]))
fillet2.setExpression("Radius", "Params.fillet2_radius")

# Sketch on XY plane
sketch10 = body.newObject("Sketcher::SketchObject", "Sketch009")
sketch10.AttachmentSupport = (doc.getObject("XY_Plane"), [""])
sketch10.MapMode = "FlatFace"
add_polygon(sketch10, [(41.850244, 38.070053), (42.061751, 41.296289), (44.961507, 42.726236), (47.649756, 40.929947), (47.438249, 37.703711), (44.538493, 36.273764)])  # lines 0-5
add_polygon(sketch10, [(42.238679, -40.779211), (43.03292, -37.645122), (46.144241, -36.765911), (48.461321, -39.020789), (47.66708, -42.154878), (44.555759, -43.034089)])  # lines 6-11
add_polygon(sketch10, [(-47.555825, -40.909939), (-48.223475, -37.746464), (-45.817649, -35.586524), (-42.744175, -36.590061), (-42.076525, -39.753536), (-44.482351, -41.913476)])  # lines 12-17
add_polygon(sketch10, [(-47.888438, 37.781195), (-48.007748, 41.012155), (-45.269309, 42.730959), (-42.411562, 41.218805), (-42.292252, 37.987845), (-45.030691, 36.269041)])  # lines 18-23
sketch10.addConstraint(Sketcher.Constraint("Parallel", 0, 3))
sketch10.addConstraint(Sketcher.Constraint("Parallel", 1, 4))
sketch10.addConstraint(Sketcher.Constraint("Parallel", 2, 5))
sketch10.addConstraint(Sketcher.Constraint("Parallel", 6, 9))
sketch10.addConstraint(Sketcher.Constraint("Parallel", 7, 10))
sketch10.addConstraint(Sketcher.Constraint("Parallel", 8, 11))
sketch10.addConstraint(Sketcher.Constraint("Parallel", 12, 15))
sketch10.addConstraint(Sketcher.Constraint("Parallel", 13, 16))
sketch10.addConstraint(Sketcher.Constraint("Parallel", 14, 17))
sketch10.addConstraint(Sketcher.Constraint("Parallel", 18, 21))
sketch10.addConstraint(Sketcher.Constraint("Parallel", 19, 22))
sketch10.addConstraint(Sketcher.Constraint("Parallel", 20, 23))
sketch10.addConstraint(Sketcher.Constraint("Equal", 0, 1))
sketch10.addConstraint(Sketcher.Constraint("Equal", 1, 2))
sketch10.addConstraint(Sketcher.Constraint("Equal", 2, 3))
sketch10.addConstraint(Sketcher.Constraint("Equal", 5, 6))
sketch10.addConstraint(Sketcher.Constraint("Equal", 6, 7))
sketch10.addConstraint(Sketcher.Constraint("Equal", 7, 8))
sketch10.addConstraint(Sketcher.Constraint("Equal", 8, 9))
sketch10.addConstraint(Sketcher.Constraint("Equal", 11, 12))
sketch10.addConstraint(Sketcher.Constraint("Equal", 12, 13))
sketch10.addConstraint(Sketcher.Constraint("Equal", 13, 14))
sketch10.addConstraint(Sketcher.Constraint("Equal", 14, 15))
sketch10.addConstraint(Sketcher.Constraint("Equal", 17, 18))
sketch10.addConstraint(Sketcher.Constraint("Equal", 18, 19))
sketch10.addConstraint(Sketcher.Constraint("Equal", 19, 20))
sketch10.addConstraint(Sketcher.Constraint("Equal", 20, 21))
sketch10.addConstraint(Sketcher.Constraint("DistanceX", 6, 2, 8, 2, Q("5.428401 mm")))
sketch10.addConstraint(Sketcher.Constraint("DistanceY", 8, 2, 3, 2, Q("76.7245 mm")))
sketch10.addConstraint(Sketcher.Constraint("DistanceY", 10, 2, 8, 2, Q("4.0133 mm")))
sketch10.addConstraint(Sketcher.Constraint("DistanceX", 12, 2, 14, 2, Q("5.4793 mm")))
sketch10.addConstraint(Sketcher.Constraint("DistanceX", 13, 2, 16, 2, Q("1.335299 mm")))
sketch10.addConstraint(Sketcher.Constraint("DistanceX", 18, 2, 13, 2, Q("2.190098 mm")))
sketch10.addConstraint(Sketcher.Constraint("Distance", 0, Q("3.233162 mm")))
sketch10.addConstraint(Sketcher.Constraint("DistanceX", -1, 1, 0, 2, Q("42.061751 mm")))
sketch10.addConstraint(Sketcher.Constraint("DistanceY", -1, 1, 0, 2, Q("41.296289 mm")))
sketch10.addConstraint(Sketcher.Constraint("DistanceX", -1, 1, 3, 2, Q("47.438249 mm")))
sketch10.addConstraint(Sketcher.Constraint("DistanceY", -1, 1, 3, 2, Q("37.703711 mm")))
sketch10.addConstraint(Sketcher.Constraint("DistanceX", -1, 1, 6, 2, Q("43.03292 mm")))
sketch10.addConstraint(Sketcher.Constraint("DistanceX", -1, 1, 7, 2, Q("46.144241 mm")))
sketch10.addConstraint(Sketcher.Constraint("DistanceX", 13, 2, -1, 1, Q("45.817649 mm")))
sketch10.addConstraint(Sketcher.Constraint("DistanceY", 14, 2, -1, 1, Q("36.590061 mm")))
sketch10.addConstraint(Sketcher.Constraint("DistanceY", 17, 2, -1, 1, Q("40.909939 mm")))
sketch10.addConstraint(Sketcher.Constraint("DistanceX", 19, 2, -1, 1, Q("45.269309 mm")))
sketch10.addConstraint(Sketcher.Constraint("DistanceY", -1, 1, 19, 2, Q("42.730959 mm")))
sketch10.addConstraint(Sketcher.Constraint("DistanceX", 20, 2, -1, 1, Q("42.411562 mm")))
sketch10.addConstraint(Sketcher.Constraint("DistanceX", 22, 2, -1, 1, Q("45.030691 mm")))
sketch10.addConstraint(Sketcher.Constraint("DistanceX", 1, 2, 2, 2, Q("2.688249 mm")))
pocket6 = body.newObject("PartDesign::Pocket", "Pocket005")
pocket6.Profile = sketch10
pocket6.setExpression("Length", "Params.pocket6_length")
pocket6.Reversed = True
doc.recompute()

fillet3 = body.newObject("PartDesign::Fillet", "Fillet002")
fillet3.Base = (pocket6, edges_at(pocket6, [
    (-47.65, 39.5, 3),
    (42.25, 39.5, 3),
    (-47.65, -38.75, 3),
    (42.85, -39.9, 3),
]))
fillet3.setExpression("Radius", "Params.fillet3_radius")
doc.recompute()

fillet4 = body.newObject("PartDesign::Fillet", "Fillet003")
fillet4.Base = (fillet3, edges_at(fillet3, [
    (-46.46, 37.025, 0),
    (-47.948, 39.397, 0),
    (-46.639, 41.872, 0),
    (-43.84, 41.975, 0),
    (-42.352, 39.603, 0),
    (-43.661, 37.128, 0),
    (-46.019, -41.412, 0),
    (-47.89, -39.328, 0),
    (-47.021, -36.666, 0),
    (-44.281, -36.088, 0),
    (-42.41, -38.172, 0),
    (-43.279, -40.834, 0),
    (43.397, -41.907, 0),
    (42.636, -39.212, 0),
    (44.589, -37.206, 0),
    (47.303, -37.893, 0),
    (48.064, -40.588, 0),
    (46.111, -42.594, 0),
    (43.194, 37.172, 0),
    (41.956, 39.683, 0),
    (43.512, 42.011, 0),
    (46.306, 41.828, 0),
    (47.544, 39.317, 0),
    (45.988, 36.989, 0),
]))
fillet4.setExpression("Radius", "Params.fillet4_radius")

doc.recompute()
